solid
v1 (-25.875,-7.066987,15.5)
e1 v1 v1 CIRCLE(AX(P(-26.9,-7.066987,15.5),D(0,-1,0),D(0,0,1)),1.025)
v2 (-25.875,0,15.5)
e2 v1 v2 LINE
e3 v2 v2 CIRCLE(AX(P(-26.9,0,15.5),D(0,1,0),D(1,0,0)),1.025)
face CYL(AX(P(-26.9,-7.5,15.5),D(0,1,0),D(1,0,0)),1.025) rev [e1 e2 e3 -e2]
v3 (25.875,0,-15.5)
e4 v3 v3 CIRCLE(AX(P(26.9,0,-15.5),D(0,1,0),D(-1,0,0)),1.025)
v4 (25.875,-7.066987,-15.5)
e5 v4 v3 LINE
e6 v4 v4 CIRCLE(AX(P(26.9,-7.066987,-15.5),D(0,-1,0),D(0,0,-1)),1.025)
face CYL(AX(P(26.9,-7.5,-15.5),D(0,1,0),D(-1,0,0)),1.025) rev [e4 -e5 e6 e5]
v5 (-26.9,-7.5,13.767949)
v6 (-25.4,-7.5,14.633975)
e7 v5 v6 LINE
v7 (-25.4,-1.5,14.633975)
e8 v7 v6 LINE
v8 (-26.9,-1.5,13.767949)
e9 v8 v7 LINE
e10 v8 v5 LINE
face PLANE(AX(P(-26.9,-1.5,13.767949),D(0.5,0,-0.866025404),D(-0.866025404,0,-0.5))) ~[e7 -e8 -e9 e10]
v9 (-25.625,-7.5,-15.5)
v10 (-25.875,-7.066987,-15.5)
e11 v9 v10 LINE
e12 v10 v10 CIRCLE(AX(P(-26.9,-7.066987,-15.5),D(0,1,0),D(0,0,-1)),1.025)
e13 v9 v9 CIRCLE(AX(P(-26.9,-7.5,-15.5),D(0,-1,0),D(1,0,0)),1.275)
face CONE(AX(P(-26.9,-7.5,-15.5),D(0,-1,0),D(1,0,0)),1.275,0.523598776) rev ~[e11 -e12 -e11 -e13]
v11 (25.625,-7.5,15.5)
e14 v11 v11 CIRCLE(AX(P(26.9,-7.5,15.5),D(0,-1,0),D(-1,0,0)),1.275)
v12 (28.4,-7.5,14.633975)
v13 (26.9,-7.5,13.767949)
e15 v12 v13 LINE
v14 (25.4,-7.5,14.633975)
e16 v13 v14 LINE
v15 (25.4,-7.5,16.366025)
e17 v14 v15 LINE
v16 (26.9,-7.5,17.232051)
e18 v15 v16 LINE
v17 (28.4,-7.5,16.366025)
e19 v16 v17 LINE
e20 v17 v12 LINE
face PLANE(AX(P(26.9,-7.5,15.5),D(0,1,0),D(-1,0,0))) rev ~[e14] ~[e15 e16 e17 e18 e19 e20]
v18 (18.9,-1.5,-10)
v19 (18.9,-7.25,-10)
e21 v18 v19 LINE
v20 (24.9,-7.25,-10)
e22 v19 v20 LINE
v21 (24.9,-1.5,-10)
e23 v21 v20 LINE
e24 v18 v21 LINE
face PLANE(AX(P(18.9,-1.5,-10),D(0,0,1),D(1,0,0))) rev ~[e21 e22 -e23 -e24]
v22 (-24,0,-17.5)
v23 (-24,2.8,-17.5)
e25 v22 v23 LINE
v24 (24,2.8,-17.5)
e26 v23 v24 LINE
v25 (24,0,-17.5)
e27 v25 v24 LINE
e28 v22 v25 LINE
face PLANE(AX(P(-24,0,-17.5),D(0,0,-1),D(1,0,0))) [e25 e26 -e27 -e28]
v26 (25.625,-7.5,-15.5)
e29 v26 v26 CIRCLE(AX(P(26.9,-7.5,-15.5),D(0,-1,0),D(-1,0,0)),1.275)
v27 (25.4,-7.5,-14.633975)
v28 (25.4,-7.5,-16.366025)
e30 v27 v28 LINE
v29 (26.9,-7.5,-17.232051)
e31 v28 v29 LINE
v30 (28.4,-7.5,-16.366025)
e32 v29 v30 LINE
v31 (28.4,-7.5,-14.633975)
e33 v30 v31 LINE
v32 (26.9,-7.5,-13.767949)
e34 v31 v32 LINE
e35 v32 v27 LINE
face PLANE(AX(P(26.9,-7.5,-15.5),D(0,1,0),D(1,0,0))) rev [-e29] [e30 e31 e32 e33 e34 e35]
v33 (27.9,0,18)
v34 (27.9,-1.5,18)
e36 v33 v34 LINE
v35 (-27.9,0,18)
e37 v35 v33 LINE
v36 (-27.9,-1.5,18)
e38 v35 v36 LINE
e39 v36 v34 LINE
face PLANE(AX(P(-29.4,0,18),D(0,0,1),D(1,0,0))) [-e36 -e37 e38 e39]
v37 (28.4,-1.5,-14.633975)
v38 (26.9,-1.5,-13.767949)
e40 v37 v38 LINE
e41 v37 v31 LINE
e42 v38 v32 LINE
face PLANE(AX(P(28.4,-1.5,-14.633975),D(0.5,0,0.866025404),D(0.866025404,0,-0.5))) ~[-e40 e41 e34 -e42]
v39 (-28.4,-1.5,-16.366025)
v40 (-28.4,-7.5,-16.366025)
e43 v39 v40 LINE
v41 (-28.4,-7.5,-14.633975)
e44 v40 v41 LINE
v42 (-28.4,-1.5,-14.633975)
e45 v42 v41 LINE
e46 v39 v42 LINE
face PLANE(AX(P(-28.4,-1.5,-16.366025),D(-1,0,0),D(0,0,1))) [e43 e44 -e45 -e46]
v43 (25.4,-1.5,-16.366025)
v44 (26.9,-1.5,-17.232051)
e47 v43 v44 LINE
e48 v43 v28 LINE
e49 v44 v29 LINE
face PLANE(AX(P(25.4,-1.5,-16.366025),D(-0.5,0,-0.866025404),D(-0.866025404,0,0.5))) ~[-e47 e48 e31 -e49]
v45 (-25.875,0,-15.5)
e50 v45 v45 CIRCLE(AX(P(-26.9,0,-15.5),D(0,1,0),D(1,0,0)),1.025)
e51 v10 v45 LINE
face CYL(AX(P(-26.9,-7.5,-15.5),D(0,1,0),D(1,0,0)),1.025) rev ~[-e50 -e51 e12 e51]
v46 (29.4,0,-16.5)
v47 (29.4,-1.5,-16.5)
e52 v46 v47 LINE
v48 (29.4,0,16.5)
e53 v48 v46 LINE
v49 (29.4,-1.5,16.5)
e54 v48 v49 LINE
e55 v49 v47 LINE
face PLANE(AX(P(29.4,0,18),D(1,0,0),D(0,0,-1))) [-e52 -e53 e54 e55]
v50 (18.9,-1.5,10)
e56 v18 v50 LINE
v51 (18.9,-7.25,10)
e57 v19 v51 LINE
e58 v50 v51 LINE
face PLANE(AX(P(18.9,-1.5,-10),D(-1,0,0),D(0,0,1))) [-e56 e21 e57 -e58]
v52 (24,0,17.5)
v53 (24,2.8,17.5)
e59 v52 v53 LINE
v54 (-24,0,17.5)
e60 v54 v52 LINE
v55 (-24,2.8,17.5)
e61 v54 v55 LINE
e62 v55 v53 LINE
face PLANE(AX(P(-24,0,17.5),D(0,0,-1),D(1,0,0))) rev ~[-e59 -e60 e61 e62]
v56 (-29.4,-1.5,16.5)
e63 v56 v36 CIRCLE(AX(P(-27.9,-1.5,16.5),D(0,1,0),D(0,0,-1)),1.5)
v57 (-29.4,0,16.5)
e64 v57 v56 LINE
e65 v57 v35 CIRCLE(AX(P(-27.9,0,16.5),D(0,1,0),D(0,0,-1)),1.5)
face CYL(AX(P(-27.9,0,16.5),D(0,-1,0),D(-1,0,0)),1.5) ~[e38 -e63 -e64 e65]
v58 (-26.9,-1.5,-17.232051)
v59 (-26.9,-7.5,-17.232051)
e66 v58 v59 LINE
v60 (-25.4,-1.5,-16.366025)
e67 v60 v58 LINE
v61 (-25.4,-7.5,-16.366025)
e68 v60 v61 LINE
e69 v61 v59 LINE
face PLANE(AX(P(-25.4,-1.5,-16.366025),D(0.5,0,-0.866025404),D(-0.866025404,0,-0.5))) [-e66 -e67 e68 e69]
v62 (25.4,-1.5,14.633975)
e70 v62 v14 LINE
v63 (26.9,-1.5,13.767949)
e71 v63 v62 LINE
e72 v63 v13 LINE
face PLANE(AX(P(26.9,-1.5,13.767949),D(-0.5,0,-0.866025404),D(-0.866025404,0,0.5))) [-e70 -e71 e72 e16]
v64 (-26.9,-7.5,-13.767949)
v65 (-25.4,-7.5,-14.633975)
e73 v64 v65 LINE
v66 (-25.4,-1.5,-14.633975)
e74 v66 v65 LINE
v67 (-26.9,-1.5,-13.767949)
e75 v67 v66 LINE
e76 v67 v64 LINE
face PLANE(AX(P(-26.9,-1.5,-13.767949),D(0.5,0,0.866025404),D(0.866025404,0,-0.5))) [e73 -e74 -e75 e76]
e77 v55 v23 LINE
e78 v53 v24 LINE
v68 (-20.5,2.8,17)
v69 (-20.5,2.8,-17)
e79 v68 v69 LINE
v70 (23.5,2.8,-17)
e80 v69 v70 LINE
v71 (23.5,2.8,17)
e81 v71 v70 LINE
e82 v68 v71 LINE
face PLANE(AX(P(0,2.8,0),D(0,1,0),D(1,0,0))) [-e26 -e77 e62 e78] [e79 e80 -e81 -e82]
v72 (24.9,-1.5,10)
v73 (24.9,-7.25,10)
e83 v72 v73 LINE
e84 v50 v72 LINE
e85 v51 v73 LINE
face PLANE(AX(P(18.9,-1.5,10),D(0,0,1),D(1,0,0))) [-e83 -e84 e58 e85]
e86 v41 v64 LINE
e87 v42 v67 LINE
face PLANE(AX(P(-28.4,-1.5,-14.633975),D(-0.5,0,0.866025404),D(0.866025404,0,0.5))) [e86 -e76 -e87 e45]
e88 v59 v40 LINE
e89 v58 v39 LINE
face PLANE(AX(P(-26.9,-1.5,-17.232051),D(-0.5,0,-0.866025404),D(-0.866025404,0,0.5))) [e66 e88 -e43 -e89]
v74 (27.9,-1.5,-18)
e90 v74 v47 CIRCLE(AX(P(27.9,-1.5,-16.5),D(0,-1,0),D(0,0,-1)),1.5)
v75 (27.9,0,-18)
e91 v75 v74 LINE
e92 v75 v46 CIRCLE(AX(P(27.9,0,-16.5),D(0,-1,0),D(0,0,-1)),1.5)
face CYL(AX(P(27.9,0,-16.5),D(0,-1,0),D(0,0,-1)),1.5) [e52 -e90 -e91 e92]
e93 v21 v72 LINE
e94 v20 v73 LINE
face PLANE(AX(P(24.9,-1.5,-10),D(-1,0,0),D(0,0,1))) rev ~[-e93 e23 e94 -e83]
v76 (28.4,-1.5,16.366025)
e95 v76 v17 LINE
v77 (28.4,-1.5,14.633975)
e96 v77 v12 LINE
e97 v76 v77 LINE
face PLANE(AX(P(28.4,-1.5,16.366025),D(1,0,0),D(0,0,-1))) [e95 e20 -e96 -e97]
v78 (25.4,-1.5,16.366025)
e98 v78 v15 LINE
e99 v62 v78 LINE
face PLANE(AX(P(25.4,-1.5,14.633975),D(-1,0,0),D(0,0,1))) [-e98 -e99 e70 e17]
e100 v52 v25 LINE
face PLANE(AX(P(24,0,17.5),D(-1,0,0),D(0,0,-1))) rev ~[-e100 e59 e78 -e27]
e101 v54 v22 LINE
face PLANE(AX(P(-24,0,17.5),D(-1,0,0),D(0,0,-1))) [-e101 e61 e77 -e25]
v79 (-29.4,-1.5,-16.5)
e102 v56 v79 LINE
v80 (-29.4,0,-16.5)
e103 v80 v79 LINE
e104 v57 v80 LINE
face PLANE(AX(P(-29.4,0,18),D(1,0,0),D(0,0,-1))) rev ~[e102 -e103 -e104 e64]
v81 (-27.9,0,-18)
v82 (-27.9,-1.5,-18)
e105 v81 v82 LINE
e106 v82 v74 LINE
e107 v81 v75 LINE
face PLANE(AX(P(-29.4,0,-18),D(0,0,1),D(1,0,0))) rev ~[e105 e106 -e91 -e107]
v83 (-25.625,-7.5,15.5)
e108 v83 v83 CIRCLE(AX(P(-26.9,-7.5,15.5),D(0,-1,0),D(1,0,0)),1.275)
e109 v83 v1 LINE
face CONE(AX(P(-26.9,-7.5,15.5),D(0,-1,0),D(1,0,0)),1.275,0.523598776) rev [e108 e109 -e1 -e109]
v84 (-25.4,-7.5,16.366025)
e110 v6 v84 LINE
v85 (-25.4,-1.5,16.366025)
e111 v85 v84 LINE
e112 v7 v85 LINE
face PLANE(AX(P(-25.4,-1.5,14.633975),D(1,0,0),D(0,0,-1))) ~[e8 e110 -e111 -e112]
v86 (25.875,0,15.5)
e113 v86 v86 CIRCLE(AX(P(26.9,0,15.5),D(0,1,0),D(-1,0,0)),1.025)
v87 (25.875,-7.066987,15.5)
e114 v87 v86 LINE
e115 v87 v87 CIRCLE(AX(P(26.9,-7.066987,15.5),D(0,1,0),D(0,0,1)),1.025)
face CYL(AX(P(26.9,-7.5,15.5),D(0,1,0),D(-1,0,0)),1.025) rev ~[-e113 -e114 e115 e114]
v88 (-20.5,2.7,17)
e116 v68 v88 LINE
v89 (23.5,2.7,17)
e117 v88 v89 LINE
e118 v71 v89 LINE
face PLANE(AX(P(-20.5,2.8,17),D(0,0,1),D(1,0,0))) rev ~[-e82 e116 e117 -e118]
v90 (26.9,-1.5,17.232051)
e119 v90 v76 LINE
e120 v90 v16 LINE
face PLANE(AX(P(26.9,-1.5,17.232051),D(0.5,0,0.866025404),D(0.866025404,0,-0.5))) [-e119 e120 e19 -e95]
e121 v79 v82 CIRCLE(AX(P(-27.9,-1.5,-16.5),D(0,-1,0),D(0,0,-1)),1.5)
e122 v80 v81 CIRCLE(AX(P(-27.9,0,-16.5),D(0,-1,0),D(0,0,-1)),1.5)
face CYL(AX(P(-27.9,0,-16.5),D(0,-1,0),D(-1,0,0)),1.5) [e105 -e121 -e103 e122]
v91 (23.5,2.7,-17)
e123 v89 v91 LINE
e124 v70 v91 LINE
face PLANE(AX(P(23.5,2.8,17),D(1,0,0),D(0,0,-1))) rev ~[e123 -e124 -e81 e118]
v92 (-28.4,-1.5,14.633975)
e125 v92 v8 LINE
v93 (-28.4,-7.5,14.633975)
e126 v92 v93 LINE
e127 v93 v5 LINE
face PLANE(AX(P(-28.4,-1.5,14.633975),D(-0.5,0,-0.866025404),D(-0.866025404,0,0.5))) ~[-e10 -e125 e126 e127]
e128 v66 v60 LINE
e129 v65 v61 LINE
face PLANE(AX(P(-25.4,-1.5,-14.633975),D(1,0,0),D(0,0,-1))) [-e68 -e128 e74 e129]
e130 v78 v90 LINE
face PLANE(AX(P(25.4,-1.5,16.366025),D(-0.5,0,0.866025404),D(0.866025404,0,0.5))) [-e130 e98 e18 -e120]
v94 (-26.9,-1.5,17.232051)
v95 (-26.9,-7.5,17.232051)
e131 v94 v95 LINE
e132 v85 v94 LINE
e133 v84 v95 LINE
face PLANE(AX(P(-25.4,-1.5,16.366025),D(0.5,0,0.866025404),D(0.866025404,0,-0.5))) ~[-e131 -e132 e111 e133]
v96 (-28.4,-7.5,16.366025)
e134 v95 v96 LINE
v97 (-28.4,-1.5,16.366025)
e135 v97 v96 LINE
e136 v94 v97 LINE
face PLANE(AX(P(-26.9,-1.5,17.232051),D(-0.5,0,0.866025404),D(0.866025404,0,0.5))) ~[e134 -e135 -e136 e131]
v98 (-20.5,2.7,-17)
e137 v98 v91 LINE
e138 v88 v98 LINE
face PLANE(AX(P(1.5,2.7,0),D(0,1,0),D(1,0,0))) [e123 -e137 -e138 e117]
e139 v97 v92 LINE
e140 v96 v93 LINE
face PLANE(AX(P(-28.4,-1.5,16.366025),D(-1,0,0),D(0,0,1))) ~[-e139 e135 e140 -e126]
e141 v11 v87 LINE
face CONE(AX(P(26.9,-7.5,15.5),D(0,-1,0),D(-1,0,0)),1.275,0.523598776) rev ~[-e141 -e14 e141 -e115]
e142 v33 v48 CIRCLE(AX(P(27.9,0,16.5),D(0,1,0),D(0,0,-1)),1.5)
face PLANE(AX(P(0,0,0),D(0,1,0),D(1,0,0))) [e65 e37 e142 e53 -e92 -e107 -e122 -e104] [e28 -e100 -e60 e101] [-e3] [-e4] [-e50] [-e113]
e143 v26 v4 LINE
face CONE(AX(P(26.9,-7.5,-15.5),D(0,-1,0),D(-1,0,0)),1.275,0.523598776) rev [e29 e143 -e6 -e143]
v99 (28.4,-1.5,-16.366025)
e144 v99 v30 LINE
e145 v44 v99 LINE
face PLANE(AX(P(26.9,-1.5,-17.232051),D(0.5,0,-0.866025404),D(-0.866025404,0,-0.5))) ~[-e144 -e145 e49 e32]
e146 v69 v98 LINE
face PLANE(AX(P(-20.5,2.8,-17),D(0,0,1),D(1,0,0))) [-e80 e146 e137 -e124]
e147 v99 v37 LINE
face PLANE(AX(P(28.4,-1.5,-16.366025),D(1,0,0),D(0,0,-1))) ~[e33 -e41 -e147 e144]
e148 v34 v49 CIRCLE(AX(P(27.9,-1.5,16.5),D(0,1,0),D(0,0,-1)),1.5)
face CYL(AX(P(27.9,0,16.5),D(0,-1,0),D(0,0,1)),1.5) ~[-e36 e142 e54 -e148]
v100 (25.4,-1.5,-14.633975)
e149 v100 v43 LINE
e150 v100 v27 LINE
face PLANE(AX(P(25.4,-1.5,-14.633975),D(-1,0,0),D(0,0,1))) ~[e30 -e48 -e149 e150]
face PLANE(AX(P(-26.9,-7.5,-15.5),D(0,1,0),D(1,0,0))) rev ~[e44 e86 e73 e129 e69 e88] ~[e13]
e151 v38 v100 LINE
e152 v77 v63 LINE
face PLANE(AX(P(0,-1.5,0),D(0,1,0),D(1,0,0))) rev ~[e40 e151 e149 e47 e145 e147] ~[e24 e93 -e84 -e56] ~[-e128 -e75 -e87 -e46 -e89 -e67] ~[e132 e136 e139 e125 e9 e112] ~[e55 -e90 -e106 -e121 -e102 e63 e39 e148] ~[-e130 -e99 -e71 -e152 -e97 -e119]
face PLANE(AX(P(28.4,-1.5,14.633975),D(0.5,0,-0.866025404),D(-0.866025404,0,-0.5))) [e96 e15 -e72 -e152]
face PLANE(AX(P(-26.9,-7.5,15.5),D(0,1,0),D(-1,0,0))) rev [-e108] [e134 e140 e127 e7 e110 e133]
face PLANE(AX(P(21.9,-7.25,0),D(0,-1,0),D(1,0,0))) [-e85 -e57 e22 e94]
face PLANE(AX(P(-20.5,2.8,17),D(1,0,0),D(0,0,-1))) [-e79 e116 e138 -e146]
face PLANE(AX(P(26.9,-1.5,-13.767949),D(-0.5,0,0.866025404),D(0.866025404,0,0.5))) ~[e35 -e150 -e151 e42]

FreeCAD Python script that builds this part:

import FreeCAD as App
import Part
import Sketcher

V = App.Vector
Q = App.Units.Quantity


def edges_at(feature, points):
    """Names of the edges that pass closest to the given points."""
    edges = feature.Shape.Edges
    near = lambda p: min(range(len(edges)), key=lambda i: edges[i].distToShape(Part.Vertex(*p))[0])
    return sorted({f"Edge{near(p) + 1}" for p in points})

doc = App.newDocument("Part")
body = doc.addObject("PartDesign::Body", "Body")

sketch1 = body.newObject("Sketcher::SketchObject", "Sketch")
sketch1.AttachmentSupport = (doc.getObject("XZ_Plane"), [""])
sketch1.MapMode = "FlatFace"
sketch1.addGeometry([
    Part.LineSegment(V(-29, -18, 0), V(-29, 18, 0)),
    Part.LineSegment(V(-29, 18, 0), V(29, 18, 0)),
    Part.LineSegment(V(29, 18, 0), V(29, -18, 0)),
    Part.LineSegment(V(29, -18, 0), V(-29, -18, 0)),
], False)
sketch1.addConstraint([
    Sketcher.Constraint("Coincident", 0, 2, 1, 1),
    Sketcher.Constraint("Coincident", 1, 2, 2, 1),
    Sketcher.Constraint("Coincident", 2, 2, 3, 1),
    Sketcher.Constraint("Coincident", 3, 2, 0, 1),
    Sketcher.Constraint("Vertical", 0),
    Sketcher.Constraint("Horizontal", 1),
    Sketcher.Constraint("Vertical", 2),
    Sketcher.Constraint("Horizontal", 3),
    Sketcher.Constraint("Symmetric", 0, 2, 2, 2, -1, 1),
    Sketcher.Constraint("DistanceY", 0, 1, 0, 2, 36.0),
    Sketcher.Constraint("DistanceX", 1, 1, 1, 2, 58.8),
])
pad1 = body.newObject("PartDesign::Pad", "Pad")
pad1.Profile = sketch1
pad1.Length = 1.5

sketch2 = body.newObject("Sketcher::SketchObject", "Sketch001")
sketch2.AttachmentSupport = (doc.getObject("XZ_Plane"), [""])
sketch2.MapMode = "FlatFace"
sketch2.addGeometry([
    Part.LineSegment(V(-24, -18, 0), V(-24, 18, 0)),
    Part.LineSegment(V(-24, 18, 0), V(24, 18, 0)),
    Part.LineSegment(V(24, 18, 0), V(24, -18, 0)),
    Part.LineSegment(V(24, -18, 0), V(-24, -18, 0)),
], False)
sketch2.addConstraint([
    Sketcher.Constraint("Coincident", 0, 2, 1, 1),
    Sketcher.Constraint("Coincident", 1, 2, 2, 1),
    Sketcher.Constraint("Coincident", 2, 2, 3, 1),
    Sketcher.Constraint("Coincident", 3, 2, 0, 1),
    Sketcher.Constraint("Vertical", 0),
    Sketcher.Constraint("Horizontal", 1),
    Sketcher.Constraint("Vertical", 2),
    Sketcher.Constraint("Horizontal", 3),
    Sketcher.Constraint("Symmetric", 0, 2, 2, 2, -1, 1),
    Sketcher.Constraint("DistanceX", 1, 1, 1, 2, 48.0),
    Sketcher.Constraint("DistanceY", 0, 1, 0, 2, 35.0),
])
pad2 = body.newObject("PartDesign::Pad", "Pad001")
pad2.Profile = sketch2
pad2.Length = 2.8
pad2.Reversed = True
doc.recompute()

fillet = body.newObject("PartDesign::Fillet", "Fillet")
fillet.Base = (pad2, edges_at(pad2, [
    (-29.4, -0.75, 18),
    (-29.4, -0.75, -18),
    (29.4, -0.75, -18),
    (29.4, -0.75, 18),
]))
fillet.Radius = 1.5

sketch3 = body.newObject("Sketcher::SketchObject", "Sketch002")
sketch3.AttachmentSupport = (doc.getObject("XZ_Plane"), [""])
sketch3.MapMode = "FlatFace"
sketch3.AttachmentOffset = App.Placement(V(0, 0, 1.5), App.Rotation())
sketch3.addGeometry([
    Part.LineSegment(V(-26.9, -17.2, 0), V(-28.4, -16.4, 0)),
    Part.LineSegment(V(-28.4, -16.4, 0), V(-28.4, -14.6, 0)),
    Part.LineSegment(V(-28.4, -14.6, 0), V(-26.9, -13.8, 0)),
    Part.LineSegment(V(-26.9, -13.8, 0), V(-25.4, -14.6, 0)),
    Part.LineSegment(V(-25.4, -14.6, 0), V(-25.4, -16.4, 0)),
    Part.LineSegment(V(-25.4, -16.4, 0), V(-26.9, -17.2, 0)),
], False)
sketch3.addConstraint([
    Sketcher.Constraint("Coincident", 0, 2, 1, 1),
    Sketcher.Constraint("Coincident", 1, 2, 2, 1),
    Sketcher.Constraint("Coincident", 2, 2, 3, 1),
    Sketcher.Constraint("Coincident", 3, 2, 4, 1),
    Sketcher.Constraint("Coincident", 4, 2, 5, 1),
    Sketcher.Constraint("Coincident", 5, 2, 0, 1),
    Sketcher.Constraint("Vertical", 1),
    Sketcher.Constraint("Vertical", 4),
    Sketcher.Constraint("Parallel", 0, 3),
    Sketcher.Constraint("Parallel", 2, 5),
    Sketcher.Constraint("Horizontal", 1, 2, 3, 2),
    Sketcher.Constraint("Horizontal", 0, 2, 4, 2),
    Sketcher.Constraint("Vertical", 2, 2, 5, 2),
    Sketcher.Constraint("Angle", 0, Q("150 deg")),
    Sketcher.Constraint("DistanceX", 1, 2, 3, 2, 3.0),
    Sketcher.Constraint("DistanceX", 0, 2, -1, 1, 28.4),
    Sketcher.Constraint("DistanceY", 1, 1, 1, 2, 1.732051),
    Sketcher.Constraint("DistanceY", 2, 2, -1, 1, 13.767949),
])
pad3 = body.newObject("PartDesign::Pad", "Pad002")
pad3.Profile = sketch3
pad3.Length = 6

sketch4 = body.newObject("Sketcher::SketchObject", "Sketch003")
sketch4.AttachmentSupport = (doc.getObject("XZ_Plane"), [""])
sketch4.MapMode = "FlatFace"
sketch4.AttachmentOffset = App.Placement(V(0, 0, 7.5), App.Rotation())
sketch4.addGeometry(Part.Circle(V(-26.9, -15.5, 0), V(0, 0, 1), 1), False)
sketch4.addConstraint([
    Sketcher.Constraint("Diameter", 0, 2.05),
    Sketcher.Constraint("DistanceX", 0, 3, -1, 1, 26.9),
    Sketcher.Constraint("DistanceY", 0, 3, -1, 1, 15.5),
])
doc.recompute()
hole = body.newObject("PartDesign::Hole", "Hole")
hole.Profile = sketch4
hole.ThreadType = "None"
hole.Diameter = 2.05
hole.DepthType = "ThroughAll"
hole.HoleCutType = "Countersink"
hole.HoleCutDiameter = 2.55
hole.HoleCutCountersinkAngle = 60

sketch5 = body.newObject("Sketcher::SketchObject", "Sketch004")
sketch5.AttachmentSupport = (doc.getObject("XZ_Plane"), [""])
sketch5.MapMode = "FlatFace"
sketch5.AttachmentOffset = App.Placement(V(0, 0, -2.8), App.Rotation())
sketch5.addGeometry([
    Part.LineSegment(V(-20, -17, 0), V(-20, 17, 0)),
    Part.LineSegment(V(-20, 17, 0), V(24, 17, 0)),
    Part.LineSegment(V(24, 17, 0), V(24, -17, 0)),
    Part.LineSegment(V(24, -17, 0), V(-20, -17, 0)),
], False)
sketch5.addConstraint([
    Sketcher.Constraint("Coincident", 0, 2, 1, 1),
    Sketcher.Constraint("Coincident", 1, 2, 2, 1),
    Sketcher.Constraint("Coincident", 2, 2, 3, 1),
    Sketcher.Constraint("Coincident", 3, 2, 0, 1),
    Sketcher.Constraint("Vertical", 0),
    Sketcher.Constraint("Horizontal", 1),
    Sketcher.Constraint("Vertical", 2),
    Sketcher.Constraint("Horizontal", 3),
    Sketcher.Constraint("DistanceX", 1, 1, 1, 2, 44.0),
    Sketcher.Constraint("DistanceY", 0, 1, 0, 2, 34.0),
    Sketcher.Constraint("DistanceY", -1, 1, 0, 2, 17.0),
    Sketcher.Constraint("DistanceX", 0, 2, -1, 1, 20.5),
])
pocket1 = body.newObject("PartDesign::Pocket", "Pocket")
pocket1.Profile = sketch5
pocket1.Length = 0.1
pocket1.Reversed = True
doc.recompute()

mirrored = body.newObject("PartDesign::Mirrored", "Mirrored")
mirrored.Originals = [pad3, hole]
mirrored.MirrorPlane = (doc.getObject("XY_Plane"), [""])
body.Tip = mirrored
doc.recompute()

mirrored2 = body.newObject("PartDesign::Mirrored", "Mirrored001")
mirrored2.Originals = [pad3, hole]
mirrored2.MirrorPlane = (doc.getObject("YZ_Plane"), [""])
body.Tip = mirrored2

sketch6 = body.newObject("Sketcher::SketchObject", "Sketch005")
sketch6.AttachmentSupport = (doc.getObject("XZ_Plane"), [""])
sketch6.MapMode = "FlatFace"
sketch6.AttachmentOffset = App.Placement(V(0, 0, 1.5), App.Rotation())
sketch6.addGeometry([
    Part.LineSegment(V(26.9, 17.2, 0), V(28.4, 16.4, 0)),
    Part.LineSegment(V(28.4, 16.4, 0), V(28.4, 14.6, 0)),
    Part.LineSegment(V(28.4, 14.6, 0), V(26.9, 13.8, 0)),
    Part.LineSegment(V(26.9, 13.8, 0), V(25.4, 14.6, 0)),
    Part.LineSegment(V(25.4, 14.6, 0), V(25.4, 16.4, 0)),
    Part.LineSegment(V(25.4, 16.4, 0), V(26.9, 17.2, 0)),
], False)
sketch6.addConstraint([
    Sketcher.Constraint("Coincident", 0, 2, 1, 1),
    Sketcher.Constraint("Coincident", 1, 2, 2, 1),
    Sketcher.Constraint("Coincident", 2, 2, 3, 1),
    Sketcher.Constraint("Coincident", 3, 2, 4, 1),
    Sketcher.Constraint("Coincident", 4, 2, 5, 1),
    Sketcher.Constraint("Coincident", 5, 2, 0, 1),
    Sketcher.Constraint("Vertical", 1),
    Sketcher.Constraint("Vertical", 4),
    Sketcher.Constraint("Parallel", 0, 3),
    Sketcher.Constraint("Parallel", 2, 5),
    Sketcher.Constraint("Horizontal", 1, 2, 3, 2),
    Sketcher.Constraint("Horizontal", 0, 2, 4, 2),
    Sketcher.Constraint("Vertical", 2, 2, 5, 2),
    Sketcher.Constraint("Angle", 0, Q("-30 deg")),
    Sketcher.Constraint("DistanceX", 3, 2, 1, 2, 3.0),
    Sketcher.Constraint("DistanceX", -1, 1, 0, 2, 28.4),
    Sketcher.Constraint("DistanceY", 1, 2, 1, 1, 1.732051),
    Sketcher.Constraint("DistanceY", -1, 1, 2, 2, 13.767949),
])
pad4 = body.newObject("PartDesign::Pad", "Pad003")
pad4.Profile = sketch6
pad4.Length = 6

sketch7 = body.newObject("Sketcher::SketchObject", "Sketch006")
sketch7.AttachmentSupport = (doc.getObject("XZ_Plane"), [""])
sketch7.MapMode = "FlatFace"
sketch7.AttachmentOffset = App.Placement(V(0, 0, 7.5), App.Rotation())
sketch7.addGeometry(Part.Circle(V(26.9, 15.5, 0), V(0, 0, 1), 1), False)
sketch7.addConstraint([
    Sketcher.Constraint("Diameter", 0, 2.05),
    Sketcher.Constraint("DistanceX", -1, 1, 0, 3, 26.9),
    Sketcher.Constraint("DistanceY", -1, 1, 0, 3, 15.5),
])
doc.recompute()
hole2 = body.newObject("PartDesign::Hole", "Hole001")
hole2.Profile = sketch7
hole2.ThreadType = "None"
hole2.Diameter = 2.05
hole2.DepthType = "ThroughAll"
hole2.HoleCutType = "Countersink"
hole2.HoleCutDiameter = 2.55
hole2.HoleCutCountersinkAngle = 60

sketch8 = body.newObject("Sketcher::SketchObject", "Sketch007")
sketch8.AttachmentSupport = (doc.getObject("XZ_Plane"), [""])
sketch8.MapMode = "FlatFace"
sketch8.AttachmentOffset = App.Placement(V(0, 0, 1.5), App.Rotation())
sketch8.addGeometry([
    Part.LineSegment(V(19, 10, 0), V(19, -10, 0)),
    Part.LineSegment(V(19, -10, 0), V(25, -10, 0)),
    Part.LineSegment(V(25, -10, 0), V(25, 10, 0)),
    Part.LineSegment(V(25, 10, 0), V(19, 10, 0)),
], False)
sketch8.addConstraint([
    Sketcher.Constraint("Coincident", 0, 2, 1, 1),
    Sketcher.Constraint("Coincident", 1, 2, 2, 1),
    Sketcher.Constraint("Coincident", 2, 2, 3, 1),
    Sketcher.Constraint("Coincident", 3, 2, 0, 1),
    Sketcher.Constraint("Vertical", 0),
    Sketcher.Constraint("Horizontal", 1),
    Sketcher.Constraint("Vertical", 2),
    Sketcher.Constraint("Horizontal", 3),
    Sketcher.Constraint("DistanceX", 1, 1, 1, 2, 6.0),
    Sketcher.Constraint("DistanceY", 0, 2, 0, 1, 20.0),
    Sketcher.Constraint("DistanceY", 0, 2, -1, 1, 10.0),
    Sketcher.Constraint("DistanceX", -1, 1, 0, 2, 18.9),
])
pad5 = body.newObject("PartDesign::Pad", "Pad004")
pad5.Profile = sketch8
pad5.Length = 5.75

doc.recompute()
